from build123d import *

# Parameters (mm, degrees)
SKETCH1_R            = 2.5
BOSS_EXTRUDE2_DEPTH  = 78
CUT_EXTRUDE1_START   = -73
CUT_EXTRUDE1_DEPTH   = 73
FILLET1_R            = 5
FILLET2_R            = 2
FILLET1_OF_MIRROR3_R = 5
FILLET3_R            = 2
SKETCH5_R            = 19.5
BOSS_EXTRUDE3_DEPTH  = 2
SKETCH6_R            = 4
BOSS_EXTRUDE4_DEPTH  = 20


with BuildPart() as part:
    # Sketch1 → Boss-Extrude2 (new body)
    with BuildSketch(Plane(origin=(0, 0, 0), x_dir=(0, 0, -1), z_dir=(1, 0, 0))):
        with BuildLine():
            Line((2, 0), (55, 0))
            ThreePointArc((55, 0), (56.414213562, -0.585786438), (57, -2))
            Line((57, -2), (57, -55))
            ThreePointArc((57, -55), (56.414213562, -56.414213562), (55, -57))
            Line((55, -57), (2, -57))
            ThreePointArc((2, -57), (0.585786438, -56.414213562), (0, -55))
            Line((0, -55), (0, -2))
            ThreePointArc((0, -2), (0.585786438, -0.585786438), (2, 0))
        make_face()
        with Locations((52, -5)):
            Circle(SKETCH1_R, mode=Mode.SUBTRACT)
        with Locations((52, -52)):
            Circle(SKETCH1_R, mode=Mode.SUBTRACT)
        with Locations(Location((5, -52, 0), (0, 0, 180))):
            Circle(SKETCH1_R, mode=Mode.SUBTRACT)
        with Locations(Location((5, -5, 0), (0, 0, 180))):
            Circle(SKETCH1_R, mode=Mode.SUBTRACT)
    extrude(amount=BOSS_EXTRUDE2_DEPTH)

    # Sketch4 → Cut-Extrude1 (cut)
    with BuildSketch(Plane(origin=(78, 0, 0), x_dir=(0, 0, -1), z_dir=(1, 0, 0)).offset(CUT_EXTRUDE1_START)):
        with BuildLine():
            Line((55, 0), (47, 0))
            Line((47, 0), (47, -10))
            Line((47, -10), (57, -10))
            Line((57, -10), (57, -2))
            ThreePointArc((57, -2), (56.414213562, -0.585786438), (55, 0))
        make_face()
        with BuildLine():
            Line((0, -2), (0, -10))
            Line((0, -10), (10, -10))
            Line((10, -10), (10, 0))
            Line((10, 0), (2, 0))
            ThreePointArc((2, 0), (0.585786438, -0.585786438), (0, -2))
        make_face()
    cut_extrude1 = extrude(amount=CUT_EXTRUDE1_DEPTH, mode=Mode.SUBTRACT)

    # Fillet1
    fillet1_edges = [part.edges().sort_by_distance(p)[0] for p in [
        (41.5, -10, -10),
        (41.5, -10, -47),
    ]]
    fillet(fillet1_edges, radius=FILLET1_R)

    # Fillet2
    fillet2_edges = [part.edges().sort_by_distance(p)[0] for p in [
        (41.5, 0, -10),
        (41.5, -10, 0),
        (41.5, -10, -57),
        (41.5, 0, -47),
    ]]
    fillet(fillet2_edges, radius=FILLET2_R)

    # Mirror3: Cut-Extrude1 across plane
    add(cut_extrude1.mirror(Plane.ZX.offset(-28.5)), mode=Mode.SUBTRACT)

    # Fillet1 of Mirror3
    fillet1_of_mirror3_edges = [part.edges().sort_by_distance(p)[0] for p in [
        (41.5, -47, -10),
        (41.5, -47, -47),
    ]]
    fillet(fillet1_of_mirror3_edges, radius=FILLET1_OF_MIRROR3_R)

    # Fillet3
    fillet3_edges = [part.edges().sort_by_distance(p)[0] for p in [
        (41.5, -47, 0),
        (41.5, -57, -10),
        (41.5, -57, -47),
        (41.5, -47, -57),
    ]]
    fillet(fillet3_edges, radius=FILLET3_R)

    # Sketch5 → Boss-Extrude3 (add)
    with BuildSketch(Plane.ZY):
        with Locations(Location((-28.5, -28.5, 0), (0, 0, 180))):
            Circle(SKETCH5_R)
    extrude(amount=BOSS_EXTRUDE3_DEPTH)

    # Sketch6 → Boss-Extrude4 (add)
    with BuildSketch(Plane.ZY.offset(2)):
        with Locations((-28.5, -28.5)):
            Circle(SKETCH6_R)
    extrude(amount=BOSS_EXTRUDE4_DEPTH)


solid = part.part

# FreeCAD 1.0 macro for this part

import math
import FreeCAD as App
import Part
import Sketcher
from FreeCAD import Vector
Q = App.Units.Quantity


def edges_at(feature, points):
    """Names of the edges that pass closest to the given points."""
    edges = feature.Shape.Edges
    near = lambda p: min(range(len(edges)), key=lambda i: edges[i].distToShape(Part.Vertex(*p))[0])
    return sorted({f"Edge{near(p) + 1}" for p in points})

doc = App.newDocument("Part")
params = doc.addObject("Spreadsheet::Sheet", "Params")
for row, (alias, value) in enumerate([
    ("sketch1_diameter", "5 mm"),
    ("sketch1_radius", "2 mm"),
    ("sketch1_width", "53 mm"),
    ("pad1_length", "78 mm"),
    ("sketch2_radius", "2 mm"),
    ("sketch2_width", "10 mm"),
    ("pocket1_length", "73 mm"),
    ("fillet_radius", "5 mm"),
    ("fillet2_radius", "2 mm"),
    ("fillet3_radius", "5 mm"),
    ("fillet4_radius", "2 mm"),
    ("sketch3_diameter", "39 mm"),
    ("pad2_length", "2 mm"),
    ("sketch4_diameter", "8 mm"),
    ("pad3_length", "20 mm"),
], start=1):
    params.set(f"A{row}", alias)
    params.set(f"B{row}", "=" + value)
    params.setAlias(f"B{row}", alias)

body = doc.addObject("PartDesign::Body", "Body")

# Sketch on YZ plane
sketch1 = body.newObject("Sketcher::SketchObject", "Sketch")
sketch1.AttachmentSupport = (doc.getObject("YZ_Plane"), [""])
sketch1.MapMode = "FlatFace"
sketch1.addGeometry([
    Part.LineSegment(Vector(0, -55, 0), Vector(0, -2, 0)),  # 0
    Part.ArcOfCircle(Part.Circle(Vector(-2, -2, 0), Vector(0, 0, 1), 2), math.radians(0), math.radians(90)),  # 1
    Part.LineSegment(Vector(-2, 0, 0), Vector(-55, 0, 0)),  # 2
    Part.ArcOfCircle(Part.Circle(Vector(-55, -2, 0), Vector(0, 0, 1), 2), math.radians(90), math.radians(180)),  # 3
    Part.LineSegment(Vector(-57, -2, 0), Vector(-57, -55, 0)),  # 4
    Part.ArcOfCircle(Part.Circle(Vector(-55, -55, 0), Vector(0, 0, 1), 2), math.radians(-180), math.radians(-90)),  # 5
    Part.LineSegment(Vector(-55, -57, 0), Vector(-2, -57, 0)),  # 6
    Part.ArcOfCircle(Part.Circle(Vector(-2, -55, 0), Vector(0, 0, 1), 2), math.radians(-90), math.radians(0)),  # 7
    Part.Circle(Vector(-52, -52, 0), Vector(0, 0, 1), 2.5),  # 8
    Part.Circle(Vector(-52, -5, 0), Vector(0, 0, 1), 2.5),  # 9
    Part.Circle(Vector(-5, -52, 0), Vector(0, 0, 1), 2.5),  # 10
    Part.Circle(Vector(-5, -5, 0), Vector(0, 0, 1), 2.5),  # 11
], False)
sketch1.addConstraint([
    Sketcher.Constraint("Tangent", 0, 2, 1, 1),
    Sketcher.Constraint("Tangent", 1, 2, 2, 1),
    Sketcher.Constraint("Tangent", 2, 2, 3, 1),
    Sketcher.Constraint("Tangent", 3, 2, 4, 1),
    Sketcher.Constraint("Tangent", 4, 2, 5, 1),
    Sketcher.Constraint("Tangent", 5, 2, 6, 1),
    Sketcher.Constraint("Tangent", 6, 2, 7, 1),
    Sketcher.Constraint("Tangent", 7, 2, 0, 1),
    Sketcher.Constraint("Vertical", 0),
    Sketcher.Constraint("Horizontal", 2),
    Sketcher.Constraint("Vertical", 4),
    Sketcher.Constraint("Horizontal", 6),
    Sketcher.Constraint("Equal", 1, 3),
    Sketcher.Constraint("Equal", 3, 5),
    Sketcher.Constraint("Equal", 5, 7),
    Sketcher.Constraint("Equal", 8, 9),
    Sketcher.Constraint("Equal", 9, 10),
    Sketcher.Constraint("Equal", 10, 11),
    Sketcher.Constraint("PointOnObject", 0, 2, -2),
    Sketcher.Constraint("PointOnObject", 1, 2, -1),
    Sketcher.Constraint("Horizontal", 8, 3, 10, 3),
    Sketcher.Constraint("Horizontal", 9, 3, 11, 3),
    Sketcher.Constraint("Vertical", 8, 3, 9, 3),
    Sketcher.Constraint("Vertical", 10, 3, 11, 3),
    Sketcher.Constraint("Equal", 6, 0),
    Sketcher.Constraint("Diameter", 8, Q("5 mm")),
    Sketcher.Constraint("Radius", 1, Q("2 mm")),
    Sketcher.Constraint("DistanceX", 2, 2, 2, 1, Q("53 mm")),
    Sketcher.Constraint("DistanceX", 8, 3, -1, 1, Q("52 mm")),
    Sketcher.Constraint("DistanceY", 8, 3, -1, 1, Q("52 mm")),
    Sketcher.Constraint("DistanceY", 9, 3, -1, 1, Q("5 mm")),
    Sketcher.Constraint("DistanceX", 10, 3, -1, 1, Q("5 mm")),
])
sketch1.setExpression("Constraints[25]", "Params.sketch1_diameter")
sketch1.setExpression("Constraints[26]", "Params.sketch1_radius")
sketch1.setExpression("Constraints[27]", "Params.sketch1_width")
pad1 = body.newObject("PartDesign::Pad", "Pad")
pad1.Profile = sketch1
pad1.setExpression("Length", "Params.pad1_length")

# Sketch on YZ plane
sketch2 = body.newObject("Sketcher::SketchObject", "Sketch001")
sketch2.AttachmentSupport = (doc.getObject("YZ_Plane"), [""])
sketch2.MapMode = "FlatFace"
sketch2.AttachmentOffset = App.Placement(Vector(0, 0, 5), App.Rotation())
sketch2.addGeometry([
    Part.LineSegment(Vector(0, -55, 0), Vector(0, -47, 0)),  # 0
    Part.LineSegment(Vector(0, -47, 0), Vector(-10, -47, 0)),  # 1
    Part.LineSegment(Vector(-10, -47, 0), Vector(-10, -57, 0)),  # 2
    Part.LineSegment(Vector(-10, -57, 0), Vector(-2, -57, 0)),  # 3
    Part.ArcOfCircle(Part.Circle(Vector(-2, -55, 0), Vector(0, 0, 1), 2), math.radians(-90), math.radians(0)),  # 4
    Part.LineSegment(Vector(-2, 0, 0), Vector(-10, 0, 0)),  # 5
    Part.LineSegment(Vector(-10, 0, 0), Vector(-10, -10, 0)),  # 6
    Part.LineSegment(Vector(-10, -10, 0), Vector(0, -10, 0)),  # 7
    Part.LineSegment(Vector(0, -10, 0), Vector(0, -2, 0)),  # 8
    Part.ArcOfCircle(Part.Circle(Vector(-2, -2, 0), Vector(0, 0, 1), 2), math.radians(0), math.radians(90)),  # 9
], False)
sketch2.addConstraint([
    Sketcher.Constraint("Coincident", 0, 2, 1, 1),
    Sketcher.Constraint("Coincident", 1, 2, 2, 1),
    Sketcher.Constraint("Coincident", 2, 2, 3, 1),
    Sketcher.Constraint("Tangent", 3, 2, 4, 1),
    Sketcher.Constraint("Tangent", 4, 2, 0, 1),
    Sketcher.Constraint("Coincident", 5, 2, 6, 1),
    Sketcher.Constraint("Coincident", 6, 2, 7, 1),
    Sketcher.Constraint("Coincident", 7, 2, 8, 1),
    Sketcher.Constraint("Tangent", 8, 2, 9, 1),
    Sketcher.Constraint("Tangent", 9, 2, 5, 1),
    Sketcher.Constraint("Vertical", 0),
    Sketcher.Constraint("Horizontal", 1),
    Sketcher.Constraint("Vertical", 2),
    Sketcher.Constraint("Horizontal", 3),
    Sketcher.Constraint("Horizontal", 5),
    Sketcher.Constraint("Vertical", 6),
    Sketcher.Constraint("Horizontal", 7),
    Sketcher.Constraint("Vertical", 8),
    Sketcher.Constraint("Equal", 4, 9),
    Sketcher.Constraint("PointOnObject", 0, 2, -2),
    Sketcher.Constraint("PointOnObject", 5, 2, -1),
    Sketcher.Constraint("PointOnObject", 7, 2, -2),
    Sketcher.Constraint("Vertical", 2, 2, 5, 2),
    Sketcher.Constraint("Equal", 5, 0),
    Sketcher.Constraint("Equal", 2, 6),
    Sketcher.Constraint("Radius", 4, Q("2 mm")),
    Sketcher.Constraint("DistanceX", 1, 2, 1, 1, Q("10 mm")),
    Sketcher.Constraint("DistanceY", 4, 3, -1, 1, Q("55 mm")),
])
sketch2.setExpression("Constraints[25]", "Params.sketch2_radius")
sketch2.setExpression("Constraints[26]", "Params.sketch2_width")
pocket1 = body.newObject("PartDesign::Pocket", "Pocket")
pocket1.Profile = sketch2
pocket1.setExpression("Length", "Params.pocket1_length")
pocket1.Reversed = True
doc.recompute()

fillet = body.newObject("PartDesign::Fillet", "Fillet")
fillet.Base = (pocket1, edges_at(pocket1, [(41.5, -10, -10), (41.5, -10, -47)]))
fillet.setExpression("Radius", "Params.fillet_radius")
doc.recompute()

fillet2 = body.newObject("PartDesign::Fillet", "Fillet001")
fillet2.Base = (fillet, edges_at(fillet, [
    (41.5, 0, -10),
    (41.5, -10, 0),
    (41.5, -10, -57),
    (41.5, 0, -47),
]))
fillet2.setExpression("Radius", "Params.fillet2_radius")
doc.recompute()

datumplane = body.newObject("PartDesign::Plane", "DatumPlane")
datumplane.AttachmentSupport = (doc.getObject("XZ_Plane"), [""])
datumplane.MapMode = "FlatFace"
datumplane.AttachmentOffset = App.Placement(Vector(0, 0, 28.5), App.Rotation())
mirrored = body.newObject("PartDesign::Mirrored", "Mirrored")
mirrored.Originals = [pocket1]
mirrored.MirrorPlane = (datumplane, [""])
body.Tip = mirrored
doc.recompute()

fillet3 = body.newObject("PartDesign::Fillet", "Fillet002")
fillet3.Base = (mirrored, edges_at(mirrored, [(41.5, -47, -10), (41.5, -47, -47)]))
fillet3.setExpression("Radius", "Params.fillet3_radius")
doc.recompute()

fillet4 = body.newObject("PartDesign::Fillet", "Fillet003")
fillet4.Base = (fillet3, edges_at(fillet3, [
    (41.5, -47, 0),
    (41.5, -57, -10),
    (41.5, -57, -47),
    (41.5, -47, -57),
]))
fillet4.setExpression("Radius", "Params.fillet4_radius")

# Sketch on YZ plane
sketch3 = body.newObject("Sketcher::SketchObject", "Sketch002")
sketch3.AttachmentSupport = (doc.getObject("YZ_Plane"), [""])
sketch3.MapMode = "FlatFace"
sketch3.addGeometry(Part.Circle(Vector(-28, -28, 0), Vector(0, 0, 1), 20), False)
sketch3.addConstraint([
    Sketcher.Constraint("Diameter", 0, Q("39 mm")),
    Sketcher.Constraint("DistanceX", 0, 3, -1, 1, Q("28.5 mm")),
    Sketcher.Constraint("DistanceY", 0, 3, -1, 1, Q("28.5 mm")),
])
sketch3.setExpression("Constraints[0]", "Params.sketch3_diameter")
pad2 = body.newObject("PartDesign::Pad", "Pad001")
pad2.Profile = sketch3
pad2.setExpression("Length", "Params.pad2_length")
pad2.Reversed = True

# Sketch on YZ plane
sketch4 = body.newObject("Sketcher::SketchObject", "Sketch003")
sketch4.AttachmentSupport = (doc.getObject("YZ_Plane"), [""])
sketch4.MapMode = "FlatFace"
sketch4.AttachmentOffset = App.Placement(Vector(0, 0, -2), App.Rotation())
sketch4.addGeometry(Part.Circle(Vector(-28.5, -28.5, 0), Vector(0, 0, 1), 4), False)
sketch4.addConstraint([
    Sketcher.Constraint("Diameter", 0, Q("8 mm")),
    Sketcher.Constraint("DistanceX", 0, 3, -1, 1, Q("28.5 mm")),
    Sketcher.Constraint("DistanceY", 0, 3, -1, 1, Q("28.5 mm")),
])
sketch4.setExpression("Constraints[0]", "Params.sketch4_diameter")
pad3 = body.newObject("PartDesign::Pad", "Pad002")
pad3.Profile = sketch4
pad3.setExpression("Length", "Params.pad3_length")
pad3.Reversed = True

doc.recompute()
